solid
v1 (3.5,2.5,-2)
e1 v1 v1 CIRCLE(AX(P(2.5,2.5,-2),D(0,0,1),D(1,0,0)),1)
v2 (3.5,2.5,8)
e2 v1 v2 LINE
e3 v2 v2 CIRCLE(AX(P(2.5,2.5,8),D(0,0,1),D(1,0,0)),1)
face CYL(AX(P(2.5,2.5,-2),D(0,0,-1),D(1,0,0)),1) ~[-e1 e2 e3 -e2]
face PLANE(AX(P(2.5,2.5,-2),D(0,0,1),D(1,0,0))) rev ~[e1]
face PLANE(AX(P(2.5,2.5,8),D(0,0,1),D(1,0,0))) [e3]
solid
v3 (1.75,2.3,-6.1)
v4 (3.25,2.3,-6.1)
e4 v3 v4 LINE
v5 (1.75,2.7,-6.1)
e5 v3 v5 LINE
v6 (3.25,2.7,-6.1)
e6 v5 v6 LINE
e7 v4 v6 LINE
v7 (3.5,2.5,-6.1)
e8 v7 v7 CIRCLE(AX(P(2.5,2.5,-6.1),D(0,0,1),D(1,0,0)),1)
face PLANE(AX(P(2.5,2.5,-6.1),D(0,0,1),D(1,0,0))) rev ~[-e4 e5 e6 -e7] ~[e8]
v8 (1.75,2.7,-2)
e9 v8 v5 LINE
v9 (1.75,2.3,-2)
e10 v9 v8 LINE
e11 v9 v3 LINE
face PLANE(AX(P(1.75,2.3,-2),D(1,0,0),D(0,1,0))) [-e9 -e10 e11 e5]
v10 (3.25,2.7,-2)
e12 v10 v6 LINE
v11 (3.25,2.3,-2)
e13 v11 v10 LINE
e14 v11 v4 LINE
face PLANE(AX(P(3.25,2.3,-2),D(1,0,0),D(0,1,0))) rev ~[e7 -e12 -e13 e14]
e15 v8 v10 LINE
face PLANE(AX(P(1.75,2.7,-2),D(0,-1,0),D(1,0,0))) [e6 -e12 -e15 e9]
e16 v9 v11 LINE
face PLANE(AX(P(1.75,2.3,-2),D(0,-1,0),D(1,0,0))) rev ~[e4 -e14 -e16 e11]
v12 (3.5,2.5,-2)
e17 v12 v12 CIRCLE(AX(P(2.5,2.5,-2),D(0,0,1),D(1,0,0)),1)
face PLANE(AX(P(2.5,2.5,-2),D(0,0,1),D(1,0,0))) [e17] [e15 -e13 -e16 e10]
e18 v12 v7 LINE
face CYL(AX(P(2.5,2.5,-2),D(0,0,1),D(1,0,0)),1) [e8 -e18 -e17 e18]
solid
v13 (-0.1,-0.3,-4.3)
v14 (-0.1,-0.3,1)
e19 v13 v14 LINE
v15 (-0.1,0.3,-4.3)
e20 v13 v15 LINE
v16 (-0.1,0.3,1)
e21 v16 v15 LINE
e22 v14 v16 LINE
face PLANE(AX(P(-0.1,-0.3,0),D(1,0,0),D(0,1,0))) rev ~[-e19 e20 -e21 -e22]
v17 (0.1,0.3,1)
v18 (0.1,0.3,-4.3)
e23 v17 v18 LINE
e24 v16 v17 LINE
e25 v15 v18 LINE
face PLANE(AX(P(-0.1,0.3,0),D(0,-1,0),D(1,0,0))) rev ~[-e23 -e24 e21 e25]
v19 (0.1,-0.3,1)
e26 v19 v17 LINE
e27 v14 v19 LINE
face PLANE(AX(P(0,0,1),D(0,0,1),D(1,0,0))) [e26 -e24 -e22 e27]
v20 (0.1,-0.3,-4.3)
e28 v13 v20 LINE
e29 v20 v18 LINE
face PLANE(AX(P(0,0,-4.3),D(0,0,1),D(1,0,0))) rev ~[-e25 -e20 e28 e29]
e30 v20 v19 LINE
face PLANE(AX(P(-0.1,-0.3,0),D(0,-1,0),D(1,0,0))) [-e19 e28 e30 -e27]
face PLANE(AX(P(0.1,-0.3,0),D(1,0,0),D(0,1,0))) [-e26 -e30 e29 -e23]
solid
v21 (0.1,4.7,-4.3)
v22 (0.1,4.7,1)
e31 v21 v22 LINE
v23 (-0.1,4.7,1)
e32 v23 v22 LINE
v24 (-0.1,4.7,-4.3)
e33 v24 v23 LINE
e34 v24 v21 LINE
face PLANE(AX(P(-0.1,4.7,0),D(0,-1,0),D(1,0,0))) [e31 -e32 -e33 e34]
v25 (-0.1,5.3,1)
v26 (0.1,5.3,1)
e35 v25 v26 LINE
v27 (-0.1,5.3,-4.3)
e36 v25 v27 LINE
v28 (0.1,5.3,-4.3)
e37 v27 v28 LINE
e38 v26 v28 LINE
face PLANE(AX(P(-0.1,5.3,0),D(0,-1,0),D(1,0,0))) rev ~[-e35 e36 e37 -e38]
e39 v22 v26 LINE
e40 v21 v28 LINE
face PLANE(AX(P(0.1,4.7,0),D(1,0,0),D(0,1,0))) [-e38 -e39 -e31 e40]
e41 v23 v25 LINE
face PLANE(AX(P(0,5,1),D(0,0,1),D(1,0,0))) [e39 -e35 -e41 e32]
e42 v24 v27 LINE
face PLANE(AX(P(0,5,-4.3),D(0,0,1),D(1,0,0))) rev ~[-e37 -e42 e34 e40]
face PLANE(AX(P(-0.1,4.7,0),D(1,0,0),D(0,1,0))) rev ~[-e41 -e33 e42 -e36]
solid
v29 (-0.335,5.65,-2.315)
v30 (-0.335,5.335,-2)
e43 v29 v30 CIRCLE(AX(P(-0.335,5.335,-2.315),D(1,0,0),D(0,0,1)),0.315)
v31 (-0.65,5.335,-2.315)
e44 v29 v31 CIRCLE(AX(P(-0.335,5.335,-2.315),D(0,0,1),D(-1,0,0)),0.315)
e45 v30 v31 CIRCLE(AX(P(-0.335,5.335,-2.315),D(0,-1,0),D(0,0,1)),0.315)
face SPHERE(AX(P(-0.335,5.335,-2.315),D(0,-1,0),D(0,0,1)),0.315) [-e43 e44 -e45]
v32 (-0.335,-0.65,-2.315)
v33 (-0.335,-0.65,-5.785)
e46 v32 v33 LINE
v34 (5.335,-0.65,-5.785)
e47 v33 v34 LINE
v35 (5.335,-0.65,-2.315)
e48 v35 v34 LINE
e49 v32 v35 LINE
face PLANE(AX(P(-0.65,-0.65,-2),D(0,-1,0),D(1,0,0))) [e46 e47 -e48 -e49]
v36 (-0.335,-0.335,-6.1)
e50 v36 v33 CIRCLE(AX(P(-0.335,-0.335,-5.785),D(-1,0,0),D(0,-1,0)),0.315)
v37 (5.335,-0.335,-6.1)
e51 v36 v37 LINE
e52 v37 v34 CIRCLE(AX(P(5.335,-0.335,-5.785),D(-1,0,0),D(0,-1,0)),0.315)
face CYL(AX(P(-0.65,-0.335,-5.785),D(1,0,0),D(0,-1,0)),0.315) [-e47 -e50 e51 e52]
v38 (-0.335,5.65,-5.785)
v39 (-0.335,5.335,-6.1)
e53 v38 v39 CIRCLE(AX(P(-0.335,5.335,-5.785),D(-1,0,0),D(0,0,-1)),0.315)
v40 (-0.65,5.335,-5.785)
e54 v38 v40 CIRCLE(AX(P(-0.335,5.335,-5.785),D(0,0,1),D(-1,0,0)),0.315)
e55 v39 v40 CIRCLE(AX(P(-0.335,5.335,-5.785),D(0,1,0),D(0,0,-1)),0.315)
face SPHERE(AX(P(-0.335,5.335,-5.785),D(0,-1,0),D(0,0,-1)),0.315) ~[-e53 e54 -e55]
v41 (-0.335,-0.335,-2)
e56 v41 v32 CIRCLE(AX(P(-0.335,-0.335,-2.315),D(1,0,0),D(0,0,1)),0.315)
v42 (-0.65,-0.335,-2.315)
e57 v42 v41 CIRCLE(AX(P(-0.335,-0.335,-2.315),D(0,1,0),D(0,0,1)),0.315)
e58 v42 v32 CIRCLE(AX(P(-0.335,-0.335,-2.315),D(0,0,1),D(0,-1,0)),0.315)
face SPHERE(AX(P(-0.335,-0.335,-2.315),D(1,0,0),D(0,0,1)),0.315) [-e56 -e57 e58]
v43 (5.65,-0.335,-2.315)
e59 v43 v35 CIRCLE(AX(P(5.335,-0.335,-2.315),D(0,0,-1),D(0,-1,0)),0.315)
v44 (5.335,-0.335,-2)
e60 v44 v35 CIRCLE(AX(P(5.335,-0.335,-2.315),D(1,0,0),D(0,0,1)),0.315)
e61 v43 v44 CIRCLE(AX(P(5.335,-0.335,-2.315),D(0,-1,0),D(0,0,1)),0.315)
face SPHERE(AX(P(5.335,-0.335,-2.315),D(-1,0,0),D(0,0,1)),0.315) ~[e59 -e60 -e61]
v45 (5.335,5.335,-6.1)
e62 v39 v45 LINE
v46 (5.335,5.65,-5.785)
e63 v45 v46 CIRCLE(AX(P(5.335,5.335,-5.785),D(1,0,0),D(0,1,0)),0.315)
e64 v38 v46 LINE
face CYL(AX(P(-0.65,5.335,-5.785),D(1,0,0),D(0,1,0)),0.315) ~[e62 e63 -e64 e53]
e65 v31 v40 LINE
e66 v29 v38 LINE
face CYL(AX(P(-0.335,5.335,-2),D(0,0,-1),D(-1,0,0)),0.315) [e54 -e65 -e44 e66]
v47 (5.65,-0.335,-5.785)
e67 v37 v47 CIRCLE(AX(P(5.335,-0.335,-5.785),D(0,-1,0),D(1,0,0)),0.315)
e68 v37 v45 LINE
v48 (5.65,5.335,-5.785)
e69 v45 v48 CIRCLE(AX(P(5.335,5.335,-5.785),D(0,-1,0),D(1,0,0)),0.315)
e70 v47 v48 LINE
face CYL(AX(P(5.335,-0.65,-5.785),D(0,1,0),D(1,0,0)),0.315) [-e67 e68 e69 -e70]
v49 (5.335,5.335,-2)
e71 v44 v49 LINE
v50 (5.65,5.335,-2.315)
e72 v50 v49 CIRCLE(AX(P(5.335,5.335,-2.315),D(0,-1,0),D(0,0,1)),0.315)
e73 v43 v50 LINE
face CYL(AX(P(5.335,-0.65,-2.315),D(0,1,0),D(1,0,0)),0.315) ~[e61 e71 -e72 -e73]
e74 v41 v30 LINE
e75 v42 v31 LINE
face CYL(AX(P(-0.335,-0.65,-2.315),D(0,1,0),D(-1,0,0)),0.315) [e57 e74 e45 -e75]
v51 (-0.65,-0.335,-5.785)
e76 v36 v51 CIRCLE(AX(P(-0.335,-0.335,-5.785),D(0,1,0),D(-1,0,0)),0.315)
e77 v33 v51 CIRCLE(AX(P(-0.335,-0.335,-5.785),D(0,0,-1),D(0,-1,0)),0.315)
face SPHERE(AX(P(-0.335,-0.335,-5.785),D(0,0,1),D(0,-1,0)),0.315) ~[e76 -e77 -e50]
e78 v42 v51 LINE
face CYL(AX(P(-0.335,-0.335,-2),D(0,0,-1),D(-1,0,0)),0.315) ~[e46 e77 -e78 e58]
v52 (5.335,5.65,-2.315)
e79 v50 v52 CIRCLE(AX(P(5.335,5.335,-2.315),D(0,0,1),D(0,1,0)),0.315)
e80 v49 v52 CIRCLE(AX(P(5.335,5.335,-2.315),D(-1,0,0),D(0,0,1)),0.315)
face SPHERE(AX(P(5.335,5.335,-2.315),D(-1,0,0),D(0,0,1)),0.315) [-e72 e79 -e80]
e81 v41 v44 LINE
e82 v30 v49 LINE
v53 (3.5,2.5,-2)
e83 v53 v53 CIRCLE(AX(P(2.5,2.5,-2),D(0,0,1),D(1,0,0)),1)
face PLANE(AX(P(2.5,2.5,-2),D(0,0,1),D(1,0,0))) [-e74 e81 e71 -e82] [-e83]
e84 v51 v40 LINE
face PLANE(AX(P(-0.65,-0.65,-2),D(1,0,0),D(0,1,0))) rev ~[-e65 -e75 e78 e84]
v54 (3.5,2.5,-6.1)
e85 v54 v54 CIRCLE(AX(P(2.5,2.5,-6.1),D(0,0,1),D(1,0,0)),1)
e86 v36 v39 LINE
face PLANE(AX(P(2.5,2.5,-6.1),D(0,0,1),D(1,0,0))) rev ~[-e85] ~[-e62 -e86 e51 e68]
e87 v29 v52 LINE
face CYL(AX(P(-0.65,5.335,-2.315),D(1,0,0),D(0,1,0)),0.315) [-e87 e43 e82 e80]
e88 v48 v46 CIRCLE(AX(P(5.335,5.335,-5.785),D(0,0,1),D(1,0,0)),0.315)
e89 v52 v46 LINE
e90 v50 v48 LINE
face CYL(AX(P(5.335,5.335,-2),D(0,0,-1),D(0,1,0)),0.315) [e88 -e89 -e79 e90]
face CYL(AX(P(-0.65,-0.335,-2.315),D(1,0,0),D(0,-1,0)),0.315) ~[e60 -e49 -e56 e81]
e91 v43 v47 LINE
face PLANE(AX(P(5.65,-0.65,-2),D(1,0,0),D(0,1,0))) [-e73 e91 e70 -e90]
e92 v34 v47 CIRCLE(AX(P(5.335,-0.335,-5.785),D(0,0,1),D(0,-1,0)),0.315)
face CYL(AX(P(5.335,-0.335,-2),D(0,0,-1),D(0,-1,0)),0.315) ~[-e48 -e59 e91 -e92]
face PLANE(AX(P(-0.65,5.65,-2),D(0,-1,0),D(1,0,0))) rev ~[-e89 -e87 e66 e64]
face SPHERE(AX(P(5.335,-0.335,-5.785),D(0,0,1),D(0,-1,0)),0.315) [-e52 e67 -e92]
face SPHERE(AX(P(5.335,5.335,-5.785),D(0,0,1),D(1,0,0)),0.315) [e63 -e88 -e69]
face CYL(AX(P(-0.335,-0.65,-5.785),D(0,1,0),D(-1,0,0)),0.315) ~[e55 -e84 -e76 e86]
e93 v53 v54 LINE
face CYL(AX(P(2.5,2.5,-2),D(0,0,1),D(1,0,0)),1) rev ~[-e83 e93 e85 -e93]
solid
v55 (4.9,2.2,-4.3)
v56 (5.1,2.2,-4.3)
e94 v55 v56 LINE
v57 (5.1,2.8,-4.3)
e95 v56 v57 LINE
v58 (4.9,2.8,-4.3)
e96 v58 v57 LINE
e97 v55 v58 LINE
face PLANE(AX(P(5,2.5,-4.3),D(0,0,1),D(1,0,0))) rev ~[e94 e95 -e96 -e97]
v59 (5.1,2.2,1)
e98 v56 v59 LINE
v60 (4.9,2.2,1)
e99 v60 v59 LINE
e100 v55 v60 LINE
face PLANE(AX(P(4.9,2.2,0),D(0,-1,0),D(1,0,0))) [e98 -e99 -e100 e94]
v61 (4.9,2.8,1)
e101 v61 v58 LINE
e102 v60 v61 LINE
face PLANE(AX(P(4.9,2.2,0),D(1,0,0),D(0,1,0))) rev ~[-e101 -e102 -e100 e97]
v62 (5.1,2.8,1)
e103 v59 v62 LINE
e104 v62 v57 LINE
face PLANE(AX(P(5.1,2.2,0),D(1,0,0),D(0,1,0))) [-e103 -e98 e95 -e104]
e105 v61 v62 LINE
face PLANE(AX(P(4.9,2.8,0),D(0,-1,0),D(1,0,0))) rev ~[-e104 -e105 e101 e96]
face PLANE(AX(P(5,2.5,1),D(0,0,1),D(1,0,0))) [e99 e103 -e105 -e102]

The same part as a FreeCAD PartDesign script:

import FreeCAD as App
import Part
import Sketcher
from FreeCAD import Vector
Q = App.Units.Quantity


def edges_at(feature, points):
    """Names of the edges that pass closest to the given points."""
    edges = feature.Shape.Edges
    near = lambda p: min(range(len(edges)), key=lambda i: edges[i].distToShape(Part.Vertex(*p))[0])
    return sorted({f"Edge{near(p) + 1}" for p in points})


def add_polygon(sketch, points):
    """Adds a closed chain of lines whose ends are joined by coincident constraints."""
    first, n = sketch.GeometryCount, len(points)
    for a, b in zip(points, points[1:] + points[:1]):
        sketch.addGeometry(Part.LineSegment(App.Vector(*a, 0), App.Vector(*b, 0)), False)
    for i in range(n):
        sketch.addConstraint(Sketcher.Constraint("Coincident", first + i, 2, first + (i + 1) % n, 1))

doc = App.newDocument("Part")
body = doc.addObject("PartDesign::Body", "Body")
body.AllowCompound = True

# Sketch on XY plane
sketch1 = doc.addObject("Sketcher::SketchObject", "Sketch")
body.addObject(sketch1)
sketch1.AttachmentSupport = (doc.XY_Plane, [""])
sketch1.MapMode = "FlatFace"
add_polygon(sketch1, [(-0.1, 5.3), (-0.1, 4.7), (0.1, 4.7), (0.1, 5.3)])  # lines 0-3
add_polygon(sketch1, [(4.9, 2.8), (4.9, 2.2), (5.1, 2.2), (5.1, 2.8)])  # lines 4-7
add_polygon(sketch1, [(-0.1, 0.3), (-0.1, -0.3), (0.1, -0.3), (0.1, 0.3)])  # lines 8-11
sketch1.addConstraint([
    Sketcher.Constraint("Vertical", 0),
    Sketcher.Constraint("Horizontal", 1),
    Sketcher.Constraint("Vertical", 2),
    Sketcher.Constraint("Horizontal", 3),
    Sketcher.Constraint("Vertical", 4),
    Sketcher.Constraint("Horizontal", 5),
    Sketcher.Constraint("Vertical", 6),
    Sketcher.Constraint("Horizontal", 7),
    Sketcher.Constraint("Vertical", 8),
    Sketcher.Constraint("Horizontal", 9),
    Sketcher.Constraint("Vertical", 10),
    Sketcher.Constraint("Horizontal", 11),
    Sketcher.Constraint("Symmetric", 8, 2, 10, 2, -1, 1),
    Sketcher.Constraint("Vertical", 3, 2, 8, 2),
    Sketcher.Constraint("Vertical", 2, 2, 9, 2),
    Sketcher.Constraint("Equal", 3, 5),
    Sketcher.Constraint("Equal", 2, 4),
    Sketcher.Constraint("Equal", 6, 8),
    Sketcher.Constraint("DistanceX", 1, 1, 1, 2, Q("0.2 mm")),
    Sketcher.Constraint("DistanceY", 0, 2, 0, 1, Q("0.6 mm")),
    Sketcher.Constraint("DistanceX", 0, 2, 4, 2, Q("5 mm")),
    Sketcher.Constraint("DistanceY", 8, 2, 0, 2, Q("5 mm")),
    Sketcher.Constraint("DistanceY", -1, 1, 4, 2, Q("2.2 mm")),
])
pad1 = doc.addObject("PartDesign::Pad", "Pad")
body.addObject(pad1)
pad1.Profile = sketch1
pad1.Type = "TwoLengths"
pad1.Length = 1
pad1.Length2 = 4.3
body2 = doc.addObject("PartDesign::Body", "Body001")

# Sketch on XY plane
sketch2 = doc.addObject("Sketcher::SketchObject", "Sketch001")
body2.addObject(sketch2)
sketch2.AttachmentSupport = (doc.getObject("XY_Plane001"), [""])
sketch2.MapMode = "FlatFace"
sketch2.AttachmentOffset = App.Placement(Vector(0, 0, -2), App.Rotation())
sketch2.addGeometry(Part.Circle(Vector(2.5, 2.5, 0), Vector(0, 0, 1), 1), False)  # 0
add_polygon(sketch2, [(3.25, 2.3), (1.75, 2.3), (1.75, 2.7), (3.25, 2.7)])  # lines 1-4
sketch2.addConstraint([
    Sketcher.Constraint("Horizontal", 1),
    Sketcher.Constraint("Vertical", 2),
    Sketcher.Constraint("Horizontal", 3),
    Sketcher.Constraint("Vertical", 4),
    Sketcher.Constraint("Diameter", 0, Q("2 mm")),
    Sketcher.Constraint("DistanceX", 1, 2, 1, 1, Q("1.5 mm")),
    Sketcher.Constraint("DistanceY", 2, 1, 2, 2, Q("0.4 mm")),
    Sketcher.Constraint("DistanceX", -1, 1, 0, 3, Q("2.5 mm")),
    Sketcher.Constraint("DistanceY", -1, 1, 0, 3, Q("2.5 mm")),
    Sketcher.Constraint("DistanceY", -1, 1, 1, 2, Q("2.3 mm")),
    Sketcher.Constraint("DistanceX", -1, 1, 1, 2, Q("1.75 mm")),
])
pad2 = doc.addObject("PartDesign::Pad", "Pad001")
body2.addObject(pad2)
pad2.Profile = sketch2
pad2.Length = 4.1
pad2.Reversed = True
body3 = doc.addObject("PartDesign::Body", "Body002")

# Sketch on XY plane
sketch3 = doc.addObject("Sketcher::SketchObject", "Sketch002")
body3.addObject(sketch3)
sketch3.AttachmentSupport = (doc.getObject("XY_Plane002"), [""])
sketch3.MapMode = "FlatFace"
sketch3.AttachmentOffset = App.Placement(Vector(0, 0, -2), App.Rotation())
sketch3.addGeometry(Part.Circle(Vector(2.5, 2.5, 0), Vector(0, 0, 1), 1), False)
sketch3.addConstraint([
    Sketcher.Constraint("Diameter", 0, Q("2 mm")),
    Sketcher.Constraint("DistanceX", -1, 1, 0, 3, Q("2.5 mm")),
    Sketcher.Constraint("DistanceY", -1, 1, 0, 3, Q("2.5 mm")),
])
pad3 = doc.addObject("PartDesign::Pad", "Pad002")
body3.addObject(pad3)
pad3.Profile = sketch3
pad3.Length = 10
body4 = doc.addObject("PartDesign::Body", "Body003")

# Sketch on XY plane
sketch4 = doc.addObject("Sketcher::SketchObject", "Sketch003")
body4.addObject(sketch4)
sketch4.AttachmentSupport = (doc.getObject("XY_Plane003"), [""])
sketch4.MapMode = "FlatFace"
sketch4.AttachmentOffset = App.Placement(Vector(0, 0, -2), App.Rotation())
add_polygon(sketch4, [(-0.7, 5.7), (-0.7, -0.7), (5.7, -0.7), (5.7, 5.7)])  # lines 0-3
sketch4.addGeometry(Part.Circle(Vector(2.5, 2.5, 0), Vector(0, 0, 1), 1), False)  # 4
sketch4.addConstraint([
    Sketcher.Constraint("Vertical", 0),
    Sketcher.Constraint("Horizontal", 1),
    Sketcher.Constraint("Vertical", 2),
    Sketcher.Constraint("Horizontal", 3),
    Sketcher.Constraint("Equal", 3, 0),
    Sketcher.Constraint("Diameter", 4, Q("2 mm")),
    Sketcher.Constraint("DistanceX", 1, 1, 1, 2, Q("6.3 mm")),
    Sketcher.Constraint("DistanceX", -1, 1, 4, 3, Q("2.5 mm")),
    Sketcher.Constraint("DistanceY", -1, 1, 4, 3, Q("2.5 mm")),
    Sketcher.Constraint("DistanceX", 0, 2, -1, 1, Q("0.65 mm")),
    Sketcher.Constraint("DistanceY", 0, 2, -1, 1, Q("0.65 mm")),
])
pad4 = doc.addObject("PartDesign::Pad", "Pad003")
body4.addObject(pad4)
pad4.Profile = sketch4
pad4.Length = 4.1
pad4.Reversed = True
doc.recompute()

fillet = doc.addObject("PartDesign::Fillet", "Fillet")
body4.addObject(fillet)
fillet.Base = (pad4, edges_at(pad4, [
    (2.5, -0.65, -2),
    (-0.65, 2.5, -2),
    (2.5, 5.65, -2),
    (5.65, 2.5, -2),
    (5.65, 5.65, -4.05),
    (5.65, -0.65, -4.05),
    (-0.65, -0.65, -4.05),
    (2.5, -0.65, -6.1),
    (5.65, 2.5, -6.1),
    (-0.65, 2.5, -6.1),
    (2.5, 5.65, -6.1),
    (-0.65, 5.65, -4.05),
]))
fillet.Radius = 0.315

doc.recompute()
